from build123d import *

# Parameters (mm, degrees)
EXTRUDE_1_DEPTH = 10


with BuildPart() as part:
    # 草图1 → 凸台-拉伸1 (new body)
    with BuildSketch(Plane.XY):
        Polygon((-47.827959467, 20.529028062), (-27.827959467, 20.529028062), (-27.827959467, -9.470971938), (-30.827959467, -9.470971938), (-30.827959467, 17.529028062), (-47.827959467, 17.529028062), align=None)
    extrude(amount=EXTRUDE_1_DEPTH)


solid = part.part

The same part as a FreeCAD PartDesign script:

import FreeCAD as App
import Part
import Sketcher

V = App.Vector


def add_polygon(sketch, points):
    """Adds a closed chain of lines whose ends are joined by coincident constraints."""
    first, n = sketch.GeometryCount, len(points)
    for a, b in zip(points, points[1:] + points[:1]):
        sketch.addGeometry(Part.LineSegment(App.Vector(*a, 0), App.Vector(*b, 0)), False)
    for i in range(n):
        sketch.addConstraint(Sketcher.Constraint("Coincident", first + i, 2, first + (i + 1) % n, 1))

doc = App.newDocument("Part")
body = doc.addObject("PartDesign::Body", "Body")

# Sketch on XY plane
sketch1 = body.newObject("Sketcher::SketchObject", "Sketch")
sketch1.AttachmentSupport = (doc.getObject("XY_Plane"), [""])
sketch1.MapMode = "FlatFace"
add_polygon(sketch1, [(-27.827959, 20.529028), (-47.827959, 20.529028), (-47.827959, 17.529028), (-30.827959, 17.529028), (-30.827959, -9.470972), (-27.827959, -9.470972)])  # lines 0-5
sketch1.addConstraint([
    Sketcher.Constraint("Horizontal", 0),
    Sketcher.Constraint("Vertical", 1),
    Sketcher.Constraint("Horizontal", 2),
    Sketcher.Constraint("Vertical", 3),
    Sketcher.Constraint("Horizontal", 4),
    Sketcher.Constraint("Vertical", 5),
    Sketcher.Constraint("Equal", 4, 1),
    Sketcher.Constraint("DistanceX", 0, 2, 0, 1, 20.0),
    Sketcher.Constraint("DistanceX", 2, 1, 2, 2, 17.0),
    Sketcher.Constraint("DistanceY", 3, 2, 3, 1, 27.0),
    Sketcher.Constraint("DistanceX", 0, 2, -1, 1, 47.827959),
    Sketcher.Constraint("DistanceY", -1, 1, 0, 2, 20.529028),
])
pad1 = body.newObject("PartDesign::Pad", "Pad")
pad1.Profile = sketch1
pad1.Length = 10

doc.recompute()
